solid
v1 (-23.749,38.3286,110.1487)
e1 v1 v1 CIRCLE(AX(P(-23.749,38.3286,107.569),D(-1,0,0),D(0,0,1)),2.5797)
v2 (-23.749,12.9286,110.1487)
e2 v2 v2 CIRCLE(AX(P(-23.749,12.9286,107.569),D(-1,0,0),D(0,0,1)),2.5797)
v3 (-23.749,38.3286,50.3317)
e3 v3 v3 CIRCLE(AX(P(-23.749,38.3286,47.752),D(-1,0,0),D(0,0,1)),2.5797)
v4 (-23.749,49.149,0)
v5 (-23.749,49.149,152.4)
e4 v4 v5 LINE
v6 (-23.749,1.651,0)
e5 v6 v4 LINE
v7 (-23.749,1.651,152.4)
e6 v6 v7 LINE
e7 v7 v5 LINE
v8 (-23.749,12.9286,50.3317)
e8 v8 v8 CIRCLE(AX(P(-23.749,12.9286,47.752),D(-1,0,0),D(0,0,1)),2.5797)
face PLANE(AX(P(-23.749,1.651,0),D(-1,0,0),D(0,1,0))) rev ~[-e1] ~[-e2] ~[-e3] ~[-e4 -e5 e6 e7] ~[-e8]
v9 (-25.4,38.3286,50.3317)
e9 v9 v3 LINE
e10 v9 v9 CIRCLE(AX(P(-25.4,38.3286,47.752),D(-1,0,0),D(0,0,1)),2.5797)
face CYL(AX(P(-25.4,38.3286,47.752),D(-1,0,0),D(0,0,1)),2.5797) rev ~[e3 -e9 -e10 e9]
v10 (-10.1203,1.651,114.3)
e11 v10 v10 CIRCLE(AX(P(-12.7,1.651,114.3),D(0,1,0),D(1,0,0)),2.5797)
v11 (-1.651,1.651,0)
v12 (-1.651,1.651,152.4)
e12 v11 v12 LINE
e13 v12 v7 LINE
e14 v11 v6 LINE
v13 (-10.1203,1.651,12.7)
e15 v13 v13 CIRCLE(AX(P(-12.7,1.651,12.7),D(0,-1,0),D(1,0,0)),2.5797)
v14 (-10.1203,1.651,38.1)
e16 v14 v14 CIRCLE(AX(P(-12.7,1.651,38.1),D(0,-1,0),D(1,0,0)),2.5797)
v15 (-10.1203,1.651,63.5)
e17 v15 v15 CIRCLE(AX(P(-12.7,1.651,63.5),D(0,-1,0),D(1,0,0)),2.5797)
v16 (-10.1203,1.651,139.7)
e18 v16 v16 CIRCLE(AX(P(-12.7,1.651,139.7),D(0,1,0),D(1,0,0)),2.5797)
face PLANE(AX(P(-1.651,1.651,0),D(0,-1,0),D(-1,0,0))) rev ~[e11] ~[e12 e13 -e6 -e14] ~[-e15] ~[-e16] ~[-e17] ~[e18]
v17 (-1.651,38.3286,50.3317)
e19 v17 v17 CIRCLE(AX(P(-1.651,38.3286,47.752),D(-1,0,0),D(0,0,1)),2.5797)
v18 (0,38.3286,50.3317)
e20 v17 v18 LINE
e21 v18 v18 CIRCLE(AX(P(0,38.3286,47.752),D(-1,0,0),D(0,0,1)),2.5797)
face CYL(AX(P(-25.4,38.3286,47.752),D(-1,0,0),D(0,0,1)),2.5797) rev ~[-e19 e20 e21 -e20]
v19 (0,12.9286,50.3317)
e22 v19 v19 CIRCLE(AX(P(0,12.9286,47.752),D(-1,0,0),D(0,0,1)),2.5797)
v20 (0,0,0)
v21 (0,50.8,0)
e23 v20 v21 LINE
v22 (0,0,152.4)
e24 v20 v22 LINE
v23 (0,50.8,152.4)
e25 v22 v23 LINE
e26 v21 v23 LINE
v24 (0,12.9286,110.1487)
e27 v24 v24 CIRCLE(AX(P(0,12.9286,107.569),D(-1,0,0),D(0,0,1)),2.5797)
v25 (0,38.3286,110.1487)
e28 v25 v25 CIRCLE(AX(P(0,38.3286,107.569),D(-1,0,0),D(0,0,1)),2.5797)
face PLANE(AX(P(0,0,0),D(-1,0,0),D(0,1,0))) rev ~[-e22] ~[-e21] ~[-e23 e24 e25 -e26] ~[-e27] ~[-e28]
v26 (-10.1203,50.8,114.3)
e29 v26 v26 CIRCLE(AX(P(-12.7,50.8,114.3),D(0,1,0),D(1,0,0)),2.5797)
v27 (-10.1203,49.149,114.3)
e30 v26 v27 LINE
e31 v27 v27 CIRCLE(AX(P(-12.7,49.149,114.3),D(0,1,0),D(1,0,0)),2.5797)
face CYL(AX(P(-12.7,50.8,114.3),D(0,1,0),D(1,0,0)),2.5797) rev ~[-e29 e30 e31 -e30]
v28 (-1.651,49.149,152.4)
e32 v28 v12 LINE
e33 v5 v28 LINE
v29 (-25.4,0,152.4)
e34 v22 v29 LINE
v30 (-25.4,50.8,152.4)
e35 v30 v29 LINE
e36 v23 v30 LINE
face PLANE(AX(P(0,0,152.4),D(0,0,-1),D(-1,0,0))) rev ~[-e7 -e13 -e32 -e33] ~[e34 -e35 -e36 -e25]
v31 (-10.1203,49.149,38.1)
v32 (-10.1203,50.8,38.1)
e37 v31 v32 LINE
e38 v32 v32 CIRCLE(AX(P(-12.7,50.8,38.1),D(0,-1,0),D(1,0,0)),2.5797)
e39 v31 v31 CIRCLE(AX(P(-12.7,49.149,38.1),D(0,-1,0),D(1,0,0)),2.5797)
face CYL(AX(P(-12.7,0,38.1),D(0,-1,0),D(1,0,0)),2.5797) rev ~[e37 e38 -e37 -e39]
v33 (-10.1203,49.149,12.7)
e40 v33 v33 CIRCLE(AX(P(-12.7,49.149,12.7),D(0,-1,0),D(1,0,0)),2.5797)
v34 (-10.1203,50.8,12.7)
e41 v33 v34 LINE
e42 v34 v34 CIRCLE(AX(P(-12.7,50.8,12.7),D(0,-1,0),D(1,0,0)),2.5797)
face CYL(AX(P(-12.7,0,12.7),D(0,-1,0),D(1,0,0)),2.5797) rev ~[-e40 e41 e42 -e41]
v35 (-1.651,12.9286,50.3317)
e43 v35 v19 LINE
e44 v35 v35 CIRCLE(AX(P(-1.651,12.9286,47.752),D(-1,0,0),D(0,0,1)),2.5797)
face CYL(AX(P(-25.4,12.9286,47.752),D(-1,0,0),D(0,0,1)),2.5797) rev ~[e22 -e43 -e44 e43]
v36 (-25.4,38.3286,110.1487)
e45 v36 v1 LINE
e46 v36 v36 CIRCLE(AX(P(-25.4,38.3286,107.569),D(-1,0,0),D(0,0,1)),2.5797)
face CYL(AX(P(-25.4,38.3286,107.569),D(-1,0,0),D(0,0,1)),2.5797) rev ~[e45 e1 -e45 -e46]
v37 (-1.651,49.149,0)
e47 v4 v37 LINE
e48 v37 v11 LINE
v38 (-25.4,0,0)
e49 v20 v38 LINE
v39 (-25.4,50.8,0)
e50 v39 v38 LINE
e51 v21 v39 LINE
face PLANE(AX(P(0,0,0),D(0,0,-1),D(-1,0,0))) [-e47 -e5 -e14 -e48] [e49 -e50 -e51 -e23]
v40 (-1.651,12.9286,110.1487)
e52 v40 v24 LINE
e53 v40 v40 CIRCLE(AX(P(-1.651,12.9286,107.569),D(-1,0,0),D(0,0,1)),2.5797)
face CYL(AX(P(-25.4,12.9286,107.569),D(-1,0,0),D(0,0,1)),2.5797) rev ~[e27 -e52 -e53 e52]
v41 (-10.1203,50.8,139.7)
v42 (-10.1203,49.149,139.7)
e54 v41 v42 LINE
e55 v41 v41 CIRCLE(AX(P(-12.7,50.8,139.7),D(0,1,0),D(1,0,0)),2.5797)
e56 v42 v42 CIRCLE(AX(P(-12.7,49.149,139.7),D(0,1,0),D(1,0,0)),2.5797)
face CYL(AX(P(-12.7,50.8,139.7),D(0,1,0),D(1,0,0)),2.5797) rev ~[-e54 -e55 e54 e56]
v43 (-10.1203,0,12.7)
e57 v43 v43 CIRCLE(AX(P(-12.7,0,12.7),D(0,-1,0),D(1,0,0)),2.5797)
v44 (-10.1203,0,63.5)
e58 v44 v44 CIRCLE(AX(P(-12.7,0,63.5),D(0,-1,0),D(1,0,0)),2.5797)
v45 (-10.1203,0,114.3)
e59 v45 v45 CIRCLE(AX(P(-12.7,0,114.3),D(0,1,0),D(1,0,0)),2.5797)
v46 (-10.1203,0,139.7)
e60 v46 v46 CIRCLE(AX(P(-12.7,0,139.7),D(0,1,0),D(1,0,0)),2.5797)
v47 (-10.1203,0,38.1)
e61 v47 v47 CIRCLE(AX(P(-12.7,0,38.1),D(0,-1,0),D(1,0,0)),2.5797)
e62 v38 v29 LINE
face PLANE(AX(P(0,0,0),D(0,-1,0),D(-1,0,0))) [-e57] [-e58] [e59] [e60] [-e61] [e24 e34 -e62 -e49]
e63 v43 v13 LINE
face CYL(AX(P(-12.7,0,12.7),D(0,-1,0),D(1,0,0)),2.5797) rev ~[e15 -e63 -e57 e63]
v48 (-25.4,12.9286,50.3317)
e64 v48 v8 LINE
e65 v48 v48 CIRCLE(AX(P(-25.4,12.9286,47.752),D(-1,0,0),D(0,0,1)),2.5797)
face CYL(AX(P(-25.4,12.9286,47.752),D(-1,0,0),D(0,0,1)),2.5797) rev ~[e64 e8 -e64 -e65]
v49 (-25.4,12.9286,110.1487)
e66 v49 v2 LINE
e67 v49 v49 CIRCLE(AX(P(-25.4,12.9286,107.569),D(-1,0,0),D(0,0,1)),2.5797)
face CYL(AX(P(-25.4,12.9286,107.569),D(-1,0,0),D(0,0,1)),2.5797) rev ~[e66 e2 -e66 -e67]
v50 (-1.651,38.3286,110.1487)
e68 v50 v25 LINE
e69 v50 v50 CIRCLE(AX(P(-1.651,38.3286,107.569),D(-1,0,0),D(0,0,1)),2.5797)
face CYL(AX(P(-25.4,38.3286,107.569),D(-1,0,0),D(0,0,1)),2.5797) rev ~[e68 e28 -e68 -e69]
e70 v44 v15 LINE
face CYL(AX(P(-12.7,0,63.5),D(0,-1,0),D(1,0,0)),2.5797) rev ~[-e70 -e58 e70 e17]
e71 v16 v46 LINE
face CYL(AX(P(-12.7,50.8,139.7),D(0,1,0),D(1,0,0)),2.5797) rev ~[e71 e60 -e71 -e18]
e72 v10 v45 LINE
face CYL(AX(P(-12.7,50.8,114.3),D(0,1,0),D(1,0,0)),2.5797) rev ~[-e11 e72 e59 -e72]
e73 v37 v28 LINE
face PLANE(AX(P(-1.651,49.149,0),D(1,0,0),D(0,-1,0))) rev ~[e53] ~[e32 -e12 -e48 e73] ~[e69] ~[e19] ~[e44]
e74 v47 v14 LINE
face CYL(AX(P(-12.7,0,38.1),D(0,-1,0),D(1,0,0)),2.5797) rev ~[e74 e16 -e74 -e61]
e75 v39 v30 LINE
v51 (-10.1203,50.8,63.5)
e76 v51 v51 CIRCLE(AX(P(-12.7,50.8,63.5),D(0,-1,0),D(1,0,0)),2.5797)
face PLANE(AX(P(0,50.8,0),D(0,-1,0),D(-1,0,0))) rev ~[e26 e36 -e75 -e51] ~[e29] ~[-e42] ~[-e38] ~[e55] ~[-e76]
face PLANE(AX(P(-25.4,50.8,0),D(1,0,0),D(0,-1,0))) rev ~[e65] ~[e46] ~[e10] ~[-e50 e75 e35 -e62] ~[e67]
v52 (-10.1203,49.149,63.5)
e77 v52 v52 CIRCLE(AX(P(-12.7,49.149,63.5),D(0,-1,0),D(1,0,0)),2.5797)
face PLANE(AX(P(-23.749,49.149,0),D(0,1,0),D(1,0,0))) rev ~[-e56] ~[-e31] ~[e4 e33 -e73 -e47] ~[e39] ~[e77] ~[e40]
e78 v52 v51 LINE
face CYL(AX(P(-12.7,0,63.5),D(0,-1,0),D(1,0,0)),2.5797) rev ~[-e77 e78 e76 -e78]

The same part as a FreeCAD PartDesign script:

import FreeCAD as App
import Part
import Sketcher

V = App.Vector
Q = App.Units.Quantity

doc = App.newDocument("Part")
body = doc.addObject("PartDesign::Body", "Body")

# Sketch on XY plane
sketch1 = doc.addObject("Sketcher::SketchObject", "Sketch")
body.addObject(sketch1)
sketch1.AttachmentSupport = (doc.XY_Plane, [""])
sketch1.MapMode = "FlatFace"
sketch1.addGeometry(Part.LineSegment(V(0, 51, 0), V(0, 0, 0)), False)
sketch1.addGeometry(Part.LineSegment(V(0, 0, 0), V(-25, 0, 0)), False)
sketch1.addGeometry(Part.LineSegment(V(-25, 0, 0), V(-25, 51, 0)), False)
sketch1.addGeometry(Part.LineSegment(V(-25, 51, 0), V(0, 51, 0)), False)
sketch1.addGeometry(Part.LineSegment(V(-2, 49, 0), V(-24, 49, 0)), False)
sketch1.addGeometry(Part.LineSegment(V(-24, 49, 0), V(-24, 2, 0)), False)
sketch1.addGeometry(Part.LineSegment(V(-24, 2, 0), V(-2, 2, 0)), False)
sketch1.addGeometry(Part.LineSegment(V(-2, 2, 0), V(-2, 49, 0)), False)
sketch1.addConstraint(Sketcher.Constraint("Coincident", 0, 2, 1, 1))
sketch1.addConstraint(Sketcher.Constraint("Coincident", 1, 2, 2, 1))
sketch1.addConstraint(Sketcher.Constraint("Coincident", 2, 2, 3, 1))
sketch1.addConstraint(Sketcher.Constraint("Coincident", 3, 2, 0, 1))
sketch1.addConstraint(Sketcher.Constraint("Coincident", 4, 2, 5, 1))
sketch1.addConstraint(Sketcher.Constraint("Coincident", 5, 2, 6, 1))
sketch1.addConstraint(Sketcher.Constraint("Coincident", 6, 2, 7, 1))
sketch1.addConstraint(Sketcher.Constraint("Coincident", 7, 2, 4, 1))
sketch1.addConstraint(Sketcher.Constraint("Vertical", 0))
sketch1.addConstraint(Sketcher.Constraint("Horizontal", 1))
sketch1.addConstraint(Sketcher.Constraint("Vertical", 2))
sketch1.addConstraint(Sketcher.Constraint("Horizontal", 3))
sketch1.addConstraint(Sketcher.Constraint("Horizontal", 4))
sketch1.addConstraint(Sketcher.Constraint("Vertical", 5))
sketch1.addConstraint(Sketcher.Constraint("Horizontal", 6))
sketch1.addConstraint(Sketcher.Constraint("Vertical", 7))
sketch1.addConstraint(Sketcher.Constraint("Coincident", 0, 2, -1, 1))
sketch1.addConstraint(Sketcher.Constraint("DistanceX", 1, 2, 1, 1, Q("1 in")))
sketch1.addConstraint(Sketcher.Constraint("DistanceY", 0, 2, 0, 1, Q("2 in")))
sketch1.addConstraint(Sketcher.Constraint("DistanceY", -1, 1, 5, 2, Q("0.065 in")))
sketch1.addConstraint(Sketcher.Constraint("DistanceX", 6, 2, -1, 1, Q("0.065 in")))
sketch1.addConstraint(Sketcher.Constraint("DistanceX", 2, 2, 4, 2, Q("0.065 in")))
sketch1.addConstraint(Sketcher.Constraint("DistanceY", 4, 2, 2, 2, Q("0.065 in")))
pad1 = doc.addObject("PartDesign::Pad", "Pad")
body.addObject(pad1)
pad1.Profile = sketch1
pad1.Length = Q("6 in")

# Sketch on XZ plane
sketch2 = doc.addObject("Sketcher::SketchObject", "Sketch001")
body.addObject(sketch2)
sketch2.AttachmentSupport = (doc.XZ_Plane, [""])
sketch2.MapMode = "FlatFace"
sketch2.addGeometry(Part.Circle(V(38.1, 12.7, 0), V(0, 0, 1), 2.6), False)
sketch2.addGeometry(Part.Circle(V(12.7, 12.7, 0), V(0, 0, 1), 2.6), False)
sketch2.addGeometry(Part.Circle(V(-12.7, 12.7, 0), V(0, 0, 1), 2.6), False)
sketch2.addGeometry(Part.Circle(V(-12.7, 38.1, 0), V(0, 0, 1), 2.6), False)
sketch2.addGeometry(Part.Circle(V(-12.7, 63.5, 0), V(0, 0, 1), 2.6), False)
sketch2.addConstraint(Sketcher.Constraint("Equal", 0, 1))
sketch2.addConstraint(Sketcher.Constraint("Equal", 1, 2))
sketch2.addConstraint(Sketcher.Constraint("Equal", 2, 3))
sketch2.addConstraint(Sketcher.Constraint("Equal", 3, 4))
sketch2.addConstraint(Sketcher.Constraint("Symmetric", 1, 3, 2, 3, -2))
sketch2.addConstraint(Sketcher.Constraint("Horizontal", 0, 3, 1, 3))
sketch2.addConstraint(Sketcher.Constraint("Vertical", 2, 3, 3, 3))
sketch2.addConstraint(Sketcher.Constraint("Vertical", 3, 3, 4, 3))
sketch2.addConstraint(Sketcher.Constraint("Diameter", 0, Q("0.203126 in")))
sketch2.addConstraint(Sketcher.Constraint("DistanceX", 1, 3, 0, 3, Q("1 in")))
sketch2.addConstraint(Sketcher.Constraint("DistanceX", 2, 3, 1, 3, Q("1 in")))
sketch2.addConstraint(Sketcher.Constraint("DistanceY", 2, 3, 3, 3, Q("1 in")))
sketch2.addConstraint(Sketcher.Constraint("DistanceY", 3, 3, 4, 3, Q("1 in")))
sketch2.addConstraint(Sketcher.Constraint("DistanceY", -1, 1, 0, 3, Q("0.5 in")))
pocket1 = doc.addObject("PartDesign::Pocket", "Pocket")
body.addObject(pocket1)
pocket1.Profile = sketch2
pocket1.Length = Q("3 in")

# Sketch on YZ plane
sketch3 = doc.addObject("Sketcher::SketchObject", "Sketch002")
body.addObject(sketch3)
sketch3.AttachmentSupport = (doc.YZ_Plane, [""])
sketch3.MapMode = "FlatFace"
sketch3.AttachmentOffset = App.Placement(V(0, 0, -1 * 25.4), App.Rotation())
sketch3.addGeometry(Part.Circle(V(38.3, 107.6, 0), V(0, 0, 1), 2.6), False)
sketch3.addGeometry(Part.Circle(V(38.3, 47.8, 0), V(0, 0, 1), 2.6), False)
sketch3.addGeometry(Part.Circle(V(12.9, 107.6, 0), V(0, 0, 1), 2.6), False)
sketch3.addGeometry(Part.Circle(V(12.9, 47.8, 0), V(0, 0, 1), 2.6), False)
sketch3.addConstraint(Sketcher.Constraint("Equal", 0, 1))
sketch3.addConstraint(Sketcher.Constraint("Equal", 1, 2))
sketch3.addConstraint(Sketcher.Constraint("Equal", 2, 3))
sketch3.addConstraint(Sketcher.Constraint("Horizontal", 0, 3, 2, 3))
sketch3.addConstraint(Sketcher.Constraint("Horizontal", 1, 3, 3, 3))
sketch3.addConstraint(Sketcher.Constraint("Vertical", 0, 3, 1, 3))
sketch3.addConstraint(Sketcher.Constraint("Vertical", 2, 3, 3, 3))
sketch3.addConstraint(Sketcher.Constraint("Diameter", 0, Q("0.203126 in")))
sketch3.addConstraint(Sketcher.Constraint("DistanceX", 2, 3, 0, 3, Q("1 in")))
sketch3.addConstraint(Sketcher.Constraint("DistanceY", 1, 3, 0, 3, Q("2.355 in")))
sketch3.addConstraint(Sketcher.Constraint("DistanceY", -1, 1, 1, 3, Q("1.88 in")))
sketch3.addConstraint(Sketcher.Constraint("DistanceX", -1, 1, 0, 3, Q("1.509 in")))
pocket2 = doc.addObject("PartDesign::Pocket", "Pocket001")
body.addObject(pocket2)
pocket2.Profile = sketch3
pocket2.Length = Q("1 in")
pocket2.Reversed = True

# Sketch on XZ plane
sketch4 = doc.addObject("Sketcher::SketchObject", "Sketch003")
body.addObject(sketch4)
sketch4.AttachmentSupport = (doc.XZ_Plane, [""])
sketch4.MapMode = "FlatFace"
sketch4.AttachmentOffset = App.Placement(V(0, 0, -2 * 25.4), App.Rotation())
sketch4.addGeometry(Part.Circle(V(-12.7, 139.7, 0), V(0, 0, 1), 2.6), False)
sketch4.addGeometry(Part.Circle(V(-12.7, 114.3, 0), V(0, 0, 1), 2.6), False)
sketch4.addConstraint(Sketcher.Constraint("Equal", 0, 1))
sketch4.addConstraint(Sketcher.Constraint("Vertical", 0, 3, 1, 3))
sketch4.addConstraint(Sketcher.Constraint("Diameter", 0, Q("0.203126 in")))
sketch4.addConstraint(Sketcher.Constraint("DistanceX", 0, 3, -1, 1, Q("0.5 in")))
sketch4.addConstraint(Sketcher.Constraint("DistanceY", 1, 3, 0, 3, Q("1 in")))
sketch4.addConstraint(Sketcher.Constraint("DistanceY", -1, 1, 0, 3, Q("5.5 in")))
pocket3 = doc.addObject("PartDesign::Pocket", "Pocket002")
body.addObject(pocket3)
pocket3.Profile = sketch4
pocket3.Length = Q("2 in")
pocket3.Reversed = True

doc.recompute()
